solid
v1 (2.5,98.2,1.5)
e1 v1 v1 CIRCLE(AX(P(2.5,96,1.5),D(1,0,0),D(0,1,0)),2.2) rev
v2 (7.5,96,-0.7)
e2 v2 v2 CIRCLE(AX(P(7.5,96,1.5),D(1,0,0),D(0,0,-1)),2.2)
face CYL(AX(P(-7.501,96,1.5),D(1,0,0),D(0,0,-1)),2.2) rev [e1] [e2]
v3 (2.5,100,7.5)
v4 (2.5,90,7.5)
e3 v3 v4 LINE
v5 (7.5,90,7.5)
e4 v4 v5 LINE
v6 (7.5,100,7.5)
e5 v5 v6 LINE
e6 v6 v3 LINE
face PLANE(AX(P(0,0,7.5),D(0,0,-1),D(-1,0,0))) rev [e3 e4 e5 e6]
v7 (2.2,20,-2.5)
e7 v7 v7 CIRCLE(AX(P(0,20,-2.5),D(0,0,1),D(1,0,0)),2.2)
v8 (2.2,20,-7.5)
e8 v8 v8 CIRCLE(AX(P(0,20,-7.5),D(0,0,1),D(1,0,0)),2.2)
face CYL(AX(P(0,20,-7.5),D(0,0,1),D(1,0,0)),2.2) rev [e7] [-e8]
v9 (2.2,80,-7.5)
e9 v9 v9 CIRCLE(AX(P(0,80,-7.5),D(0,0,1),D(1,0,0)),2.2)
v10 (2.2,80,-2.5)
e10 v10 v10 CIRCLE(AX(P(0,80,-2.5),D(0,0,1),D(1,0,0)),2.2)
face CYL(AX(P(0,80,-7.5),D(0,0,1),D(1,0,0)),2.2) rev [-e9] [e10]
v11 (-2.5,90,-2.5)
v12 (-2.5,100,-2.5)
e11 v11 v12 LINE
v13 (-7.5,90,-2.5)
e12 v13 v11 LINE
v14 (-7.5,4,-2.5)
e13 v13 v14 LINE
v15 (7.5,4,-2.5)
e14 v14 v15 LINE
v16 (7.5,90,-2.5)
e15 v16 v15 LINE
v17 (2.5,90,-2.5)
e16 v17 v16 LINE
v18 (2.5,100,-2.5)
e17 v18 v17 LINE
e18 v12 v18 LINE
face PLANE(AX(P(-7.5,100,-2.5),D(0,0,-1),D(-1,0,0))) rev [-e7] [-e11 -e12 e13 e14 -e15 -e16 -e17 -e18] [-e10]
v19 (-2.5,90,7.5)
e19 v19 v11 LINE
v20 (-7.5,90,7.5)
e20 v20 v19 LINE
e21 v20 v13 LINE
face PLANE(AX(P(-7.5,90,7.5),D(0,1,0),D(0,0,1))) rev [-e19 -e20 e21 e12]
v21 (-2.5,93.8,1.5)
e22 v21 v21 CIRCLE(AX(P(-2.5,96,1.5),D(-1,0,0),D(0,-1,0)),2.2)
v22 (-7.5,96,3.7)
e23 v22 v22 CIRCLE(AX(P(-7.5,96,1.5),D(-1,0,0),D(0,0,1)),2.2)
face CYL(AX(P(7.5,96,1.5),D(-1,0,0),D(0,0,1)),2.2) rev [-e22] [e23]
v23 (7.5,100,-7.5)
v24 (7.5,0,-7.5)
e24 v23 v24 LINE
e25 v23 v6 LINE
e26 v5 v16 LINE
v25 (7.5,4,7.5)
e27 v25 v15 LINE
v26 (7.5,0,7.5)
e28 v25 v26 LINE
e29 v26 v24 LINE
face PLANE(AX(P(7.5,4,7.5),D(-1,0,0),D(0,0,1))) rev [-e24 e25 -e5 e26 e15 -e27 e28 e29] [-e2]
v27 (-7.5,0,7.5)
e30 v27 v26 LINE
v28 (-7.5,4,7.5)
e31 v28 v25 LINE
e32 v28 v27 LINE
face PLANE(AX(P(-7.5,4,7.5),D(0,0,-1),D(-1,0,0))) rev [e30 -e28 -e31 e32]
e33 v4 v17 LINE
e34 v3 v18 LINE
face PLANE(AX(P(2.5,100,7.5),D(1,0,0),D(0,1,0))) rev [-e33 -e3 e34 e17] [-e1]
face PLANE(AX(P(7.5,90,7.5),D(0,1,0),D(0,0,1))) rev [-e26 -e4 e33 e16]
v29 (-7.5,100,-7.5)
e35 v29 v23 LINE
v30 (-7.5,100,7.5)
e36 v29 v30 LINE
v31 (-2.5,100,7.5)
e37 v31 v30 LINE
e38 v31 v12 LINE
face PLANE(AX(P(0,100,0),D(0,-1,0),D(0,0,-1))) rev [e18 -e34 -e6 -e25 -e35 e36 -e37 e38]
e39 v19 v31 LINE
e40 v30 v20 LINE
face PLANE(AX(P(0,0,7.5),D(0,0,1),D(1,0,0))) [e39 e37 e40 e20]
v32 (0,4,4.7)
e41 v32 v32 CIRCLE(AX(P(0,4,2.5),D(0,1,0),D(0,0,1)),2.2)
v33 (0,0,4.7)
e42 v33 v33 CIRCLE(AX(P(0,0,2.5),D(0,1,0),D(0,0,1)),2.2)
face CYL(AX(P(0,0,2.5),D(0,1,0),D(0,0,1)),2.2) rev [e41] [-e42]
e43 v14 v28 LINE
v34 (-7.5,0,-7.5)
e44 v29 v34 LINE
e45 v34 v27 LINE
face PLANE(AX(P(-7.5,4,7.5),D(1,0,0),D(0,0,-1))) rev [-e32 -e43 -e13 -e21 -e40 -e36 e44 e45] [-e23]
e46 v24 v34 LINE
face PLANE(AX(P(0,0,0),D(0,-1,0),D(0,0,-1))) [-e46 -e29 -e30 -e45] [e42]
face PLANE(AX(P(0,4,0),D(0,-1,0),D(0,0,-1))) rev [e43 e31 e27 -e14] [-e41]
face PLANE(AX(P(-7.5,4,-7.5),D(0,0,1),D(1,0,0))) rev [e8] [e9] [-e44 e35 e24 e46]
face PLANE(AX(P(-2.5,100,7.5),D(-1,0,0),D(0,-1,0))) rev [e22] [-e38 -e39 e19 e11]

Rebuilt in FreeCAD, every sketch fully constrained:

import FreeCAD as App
import Part
import Sketcher
from FreeCAD import Vector
Q = App.Units.Quantity

doc = App.newDocument("Part")
params = doc.addObject("Spreadsheet::Sheet", "Params")
for row, (alias, value) in enumerate([
    ("sketch1_width", "15 mm"),
    ("pad1_length", "4 mm"),
    ("sketch2_width", "15 mm"),
    ("sketch2_height", "5 mm"),
    ("pad2_length", "96 mm"),
    ("sketch3_width", "5 mm"),
    ("sketch3_height", "10 mm"),
    ("pad3_length", "10 mm"),
    ("sketch4_diameter", "4.4 mm"),
    ("sketch5_diameter", "4.4 mm"),
    ("sketch6_diameter", "4.4 mm"),
    ("sketch7_diameter", "4.4 mm"),
], start=1):
    params.set(f"A{row}", alias)
    params.set(f"B{row}", "=" + value)
    params.setAlias(f"B{row}", alias)

body = doc.addObject("PartDesign::Body", "Body")

sketch1 = body.newObject("Sketcher::SketchObject", "Sketch")
sketch1.AttachmentSupport = (doc.getObject("XZ_Plane"), [""])
sketch1.MapMode = "FlatFace"
sketch1.addGeometry(Part.LineSegment(Vector(-8, -8, 0), Vector(-8, 8, 0)), False)
sketch1.addGeometry(Part.LineSegment(Vector(-8, 8, 0), Vector(8, 8, 0)), False)
sketch1.addGeometry(Part.LineSegment(Vector(8, 8, 0), Vector(8, -8, 0)), False)
sketch1.addGeometry(Part.LineSegment(Vector(8, -8, 0), Vector(-8, -8, 0)), False)
sketch1.addConstraint(Sketcher.Constraint("Coincident", 0, 2, 1, 1))
sketch1.addConstraint(Sketcher.Constraint("Coincident", 1, 2, 2, 1))
sketch1.addConstraint(Sketcher.Constraint("Coincident", 2, 2, 3, 1))
sketch1.addConstraint(Sketcher.Constraint("Coincident", 3, 2, 0, 1))
sketch1.addConstraint(Sketcher.Constraint("Vertical", 0))
sketch1.addConstraint(Sketcher.Constraint("Horizontal", 1))
sketch1.addConstraint(Sketcher.Constraint("Vertical", 2))
sketch1.addConstraint(Sketcher.Constraint("Horizontal", 3))
sketch1.addConstraint(Sketcher.Constraint("Symmetric", 0, 2, 2, 2, -1, 1))
sketch1.addConstraint(Sketcher.Constraint("Equal", 3, 0))
sketch1.addConstraint(Sketcher.Constraint("DistanceX", 1, 1, 1, 2, Q("15 mm")))
sketch1.setExpression("Constraints[10]", "Params.sketch1_width")
pad1 = body.newObject("PartDesign::Pad", "Pad")
pad1.Profile = sketch1
pad1.setExpression("Length", "Params.pad1_length")
pad1.Reversed = True

sketch2 = body.newObject("Sketcher::SketchObject", "Sketch001")
sketch2.AttachmentSupport = (doc.getObject("XZ_Plane"), [""])
sketch2.MapMode = "FlatFace"
sketch2.AttachmentOffset = App.Placement(Vector(0, 0, -4), App.Rotation())
sketch2.addGeometry(Part.LineSegment(Vector(-8, -8, 0), Vector(-8, -2, 0)), False)
sketch2.addGeometry(Part.LineSegment(Vector(-8, -2, 0), Vector(8, -2, 0)), False)
sketch2.addGeometry(Part.LineSegment(Vector(8, -2, 0), Vector(8, -8, 0)), False)
sketch2.addGeometry(Part.LineSegment(Vector(8, -8, 0), Vector(-8, -8, 0)), False)
sketch2.addConstraint(Sketcher.Constraint("Coincident", 0, 2, 1, 1))
sketch2.addConstraint(Sketcher.Constraint("Coincident", 1, 2, 2, 1))
sketch2.addConstraint(Sketcher.Constraint("Coincident", 2, 2, 3, 1))
sketch2.addConstraint(Sketcher.Constraint("Coincident", 3, 2, 0, 1))
sketch2.addConstraint(Sketcher.Constraint("Vertical", 0))
sketch2.addConstraint(Sketcher.Constraint("Horizontal", 1))
sketch2.addConstraint(Sketcher.Constraint("Vertical", 2))
sketch2.addConstraint(Sketcher.Constraint("Horizontal", 3))
sketch2.addConstraint(Sketcher.Constraint("DistanceX", 1, 1, 1, 2, Q("15 mm")))
sketch2.addConstraint(Sketcher.Constraint("DistanceY", 0, 1, 0, 2, Q("5 mm")))
sketch2.addConstraint(Sketcher.Constraint("DistanceX", 0, 2, -1, 1, Q("7.5 mm")))
sketch2.addConstraint(Sketcher.Constraint("DistanceY", 0, 2, -1, 1, Q("2.5 mm")))
sketch2.setExpression("Constraints[8]", "Params.sketch2_width")
sketch2.setExpression("Constraints[9]", "Params.sketch2_height")
pad2 = body.newObject("PartDesign::Pad", "Pad001")
pad2.Profile = sketch2
pad2.setExpression("Length", "Params.pad2_length")
pad2.Reversed = True

sketch3 = body.newObject("Sketcher::SketchObject", "Sketch002")
sketch3.AttachmentSupport = (doc.getObject("XY_Plane"), [""])
sketch3.MapMode = "FlatFace"
sketch3.AttachmentOffset = App.Placement(Vector(0, 0, -2.5), App.Rotation())
sketch3.addGeometry(Part.LineSegment(Vector(-8, 100, 0), Vector(-8, 90, 0)), False)
sketch3.addGeometry(Part.LineSegment(Vector(-8, 90, 0), Vector(-2, 90, 0)), False)
sketch3.addGeometry(Part.LineSegment(Vector(-2, 90, 0), Vector(-2, 100, 0)), False)
sketch3.addGeometry(Part.LineSegment(Vector(-2, 100, 0), Vector(-8, 100, 0)), False)
sketch3.addGeometry(Part.LineSegment(Vector(2, 100, 0), Vector(2, 90, 0)), False)
sketch3.addGeometry(Part.LineSegment(Vector(2, 90, 0), Vector(8, 90, 0)), False)
sketch3.addGeometry(Part.LineSegment(Vector(8, 90, 0), Vector(8, 100, 0)), False)
sketch3.addGeometry(Part.LineSegment(Vector(8, 100, 0), Vector(2, 100, 0)), False)
sketch3.addConstraint(Sketcher.Constraint("Coincident", 0, 2, 1, 1))
sketch3.addConstraint(Sketcher.Constraint("Coincident", 1, 2, 2, 1))
sketch3.addConstraint(Sketcher.Constraint("Coincident", 2, 2, 3, 1))
sketch3.addConstraint(Sketcher.Constraint("Coincident", 3, 2, 0, 1))
sketch3.addConstraint(Sketcher.Constraint("Coincident", 4, 2, 5, 1))
sketch3.addConstraint(Sketcher.Constraint("Coincident", 5, 2, 6, 1))
sketch3.addConstraint(Sketcher.Constraint("Coincident", 6, 2, 7, 1))
sketch3.addConstraint(Sketcher.Constraint("Coincident", 7, 2, 4, 1))
sketch3.addConstraint(Sketcher.Constraint("Vertical", 0))
sketch3.addConstraint(Sketcher.Constraint("Horizontal", 1))
sketch3.addConstraint(Sketcher.Constraint("Vertical", 2))
sketch3.addConstraint(Sketcher.Constraint("Horizontal", 3))
sketch3.addConstraint(Sketcher.Constraint("Vertical", 4))
sketch3.addConstraint(Sketcher.Constraint("Horizontal", 5))
sketch3.addConstraint(Sketcher.Constraint("Vertical", 6))
sketch3.addConstraint(Sketcher.Constraint("Horizontal", 7))
sketch3.addConstraint(Sketcher.Constraint("Symmetric", 1, 2, 4, 2, -2))
sketch3.addConstraint(Sketcher.Constraint("Symmetric", 3, 2, 6, 2, -2))
sketch3.addConstraint(Sketcher.Constraint("DistanceX", 1, 1, 1, 2, Q("5 mm")))
sketch3.addConstraint(Sketcher.Constraint("DistanceY", 0, 2, 0, 1, Q("10 mm")))
sketch3.addConstraint(Sketcher.Constraint("DistanceY", -1, 1, 0, 2, Q("90 mm")))
sketch3.addConstraint(Sketcher.Constraint("DistanceX", 1, 2, 4, 2, Q("5 mm")))
sketch3.setExpression("Constraints[18]", "Params.sketch3_width")
sketch3.setExpression("Constraints[19]", "Params.sketch3_height")
pad3 = body.newObject("PartDesign::Pad", "Pad002")
pad3.Profile = sketch3
pad3.setExpression("Length", "Params.pad3_length")

sketch4 = body.newObject("Sketcher::SketchObject", "Sketch003")
sketch4.AttachmentSupport = (doc.getObject("XZ_Plane"), [""])
sketch4.MapMode = "FlatFace"
sketch4.AttachmentOffset = App.Placement(Vector(0, 0, -4), App.Rotation())
sketch4.addGeometry(Part.Circle(Vector(0, 2.5, 0), Vector(0, 0, 1), 2.2), False)
sketch4.addConstraint(Sketcher.Constraint("PointOnObject", 0, 3, -2))
sketch4.addConstraint(Sketcher.Constraint("Diameter", 0, Q("4.4 mm")))
sketch4.addConstraint(Sketcher.Constraint("DistanceY", -1, 1, 0, 3, Q("2.5 mm")))
sketch4.setExpression("Constraints[1]", "Params.sketch4_diameter")
pocket1 = body.newObject("PartDesign::Pocket", "Pocket")
pocket1.Profile = sketch4
pocket1.Type = "ThroughAll"
pocket1.Reversed = True

sketch5 = body.newObject("Sketcher::SketchObject", "Sketch004")
sketch5.AttachmentSupport = (doc.getObject("YZ_Plane"), [""])
sketch5.MapMode = "FlatFace"
sketch5.AttachmentOffset = App.Placement(Vector(0, 0, 7.5), App.Rotation())
sketch5.addGeometry(Part.Circle(Vector(96, 1.5, 0), Vector(0, 0, 1), 2.2), False)
sketch5.addConstraint(Sketcher.Constraint("Diameter", 0, Q("4.4 mm")))
sketch5.addConstraint(Sketcher.Constraint("DistanceX", -1, 1, 0, 3, Q("96 mm")))
sketch5.addConstraint(Sketcher.Constraint("DistanceY", -1, 1, 0, 3, Q("1.5 mm")))
sketch5.setExpression("Constraints[0]", "Params.sketch5_diameter")
pocket2 = body.newObject("PartDesign::Pocket", "Pocket001")
pocket2.Profile = sketch5
pocket2.Type = "UpToFirst"

sketch6 = body.newObject("Sketcher::SketchObject", "Sketch005")
sketch6.AttachmentSupport = (doc.getObject("YZ_Plane"), [""])
sketch6.MapMode = "FlatFace"
sketch6.AttachmentOffset = App.Placement(Vector(0, 0, -7.5), App.Rotation())
sketch6.addGeometry(Part.Circle(Vector(96, 1.5, 0), Vector(0, 0, 1), 2.2), False)
sketch6.addConstraint(Sketcher.Constraint("Diameter", 0, Q("4.4 mm")))
sketch6.addConstraint(Sketcher.Constraint("DistanceX", -1, 1, 0, 3, Q("96 mm")))
sketch6.addConstraint(Sketcher.Constraint("DistanceY", -1, 1, 0, 3, Q("1.5 mm")))
sketch6.setExpression("Constraints[0]", "Params.sketch6_diameter")
pocket3 = body.newObject("PartDesign::Pocket", "Pocket002")
pocket3.Profile = sketch6
pocket3.Type = "ThroughAll"
pocket3.Reversed = True

sketch7 = body.newObject("Sketcher::SketchObject", "Sketch006")
sketch7.AttachmentSupport = (doc.getObject("XY_Plane"), [""])
sketch7.MapMode = "FlatFace"
sketch7.AttachmentOffset = App.Placement(Vector(0, 0, -2.5), App.Rotation())
sketch7.addGeometry(Part.Circle(Vector(0, 20, 0), Vector(0, 0, 1), 2.2), False)
sketch7.addGeometry(Part.Circle(Vector(0, 80, 0), Vector(0, 0, 1), 2.2), False)
sketch7.addConstraint(Sketcher.Constraint("Equal", 0, 1))
sketch7.addConstraint(Sketcher.Constraint("PointOnObject", 0, 3, -2))
sketch7.addConstraint(Sketcher.Constraint("PointOnObject", 1, 3, -2))
sketch7.addConstraint(Sketcher.Constraint("Diameter", 0, Q("4.4 mm")))
sketch7.addConstraint(Sketcher.Constraint("DistanceY", -1, 1, 0, 3, Q("20 mm")))
sketch7.addConstraint(Sketcher.Constraint("DistanceY", -1, 1, 1, 3, Q("80 mm")))
sketch7.setExpression("Constraints[3]", "Params.sketch7_diameter")
pocket4 = body.newObject("PartDesign::Pocket", "Pocket003")
pocket4.Profile = sketch7
pocket4.Type = "ThroughAll"

doc.recompute()
